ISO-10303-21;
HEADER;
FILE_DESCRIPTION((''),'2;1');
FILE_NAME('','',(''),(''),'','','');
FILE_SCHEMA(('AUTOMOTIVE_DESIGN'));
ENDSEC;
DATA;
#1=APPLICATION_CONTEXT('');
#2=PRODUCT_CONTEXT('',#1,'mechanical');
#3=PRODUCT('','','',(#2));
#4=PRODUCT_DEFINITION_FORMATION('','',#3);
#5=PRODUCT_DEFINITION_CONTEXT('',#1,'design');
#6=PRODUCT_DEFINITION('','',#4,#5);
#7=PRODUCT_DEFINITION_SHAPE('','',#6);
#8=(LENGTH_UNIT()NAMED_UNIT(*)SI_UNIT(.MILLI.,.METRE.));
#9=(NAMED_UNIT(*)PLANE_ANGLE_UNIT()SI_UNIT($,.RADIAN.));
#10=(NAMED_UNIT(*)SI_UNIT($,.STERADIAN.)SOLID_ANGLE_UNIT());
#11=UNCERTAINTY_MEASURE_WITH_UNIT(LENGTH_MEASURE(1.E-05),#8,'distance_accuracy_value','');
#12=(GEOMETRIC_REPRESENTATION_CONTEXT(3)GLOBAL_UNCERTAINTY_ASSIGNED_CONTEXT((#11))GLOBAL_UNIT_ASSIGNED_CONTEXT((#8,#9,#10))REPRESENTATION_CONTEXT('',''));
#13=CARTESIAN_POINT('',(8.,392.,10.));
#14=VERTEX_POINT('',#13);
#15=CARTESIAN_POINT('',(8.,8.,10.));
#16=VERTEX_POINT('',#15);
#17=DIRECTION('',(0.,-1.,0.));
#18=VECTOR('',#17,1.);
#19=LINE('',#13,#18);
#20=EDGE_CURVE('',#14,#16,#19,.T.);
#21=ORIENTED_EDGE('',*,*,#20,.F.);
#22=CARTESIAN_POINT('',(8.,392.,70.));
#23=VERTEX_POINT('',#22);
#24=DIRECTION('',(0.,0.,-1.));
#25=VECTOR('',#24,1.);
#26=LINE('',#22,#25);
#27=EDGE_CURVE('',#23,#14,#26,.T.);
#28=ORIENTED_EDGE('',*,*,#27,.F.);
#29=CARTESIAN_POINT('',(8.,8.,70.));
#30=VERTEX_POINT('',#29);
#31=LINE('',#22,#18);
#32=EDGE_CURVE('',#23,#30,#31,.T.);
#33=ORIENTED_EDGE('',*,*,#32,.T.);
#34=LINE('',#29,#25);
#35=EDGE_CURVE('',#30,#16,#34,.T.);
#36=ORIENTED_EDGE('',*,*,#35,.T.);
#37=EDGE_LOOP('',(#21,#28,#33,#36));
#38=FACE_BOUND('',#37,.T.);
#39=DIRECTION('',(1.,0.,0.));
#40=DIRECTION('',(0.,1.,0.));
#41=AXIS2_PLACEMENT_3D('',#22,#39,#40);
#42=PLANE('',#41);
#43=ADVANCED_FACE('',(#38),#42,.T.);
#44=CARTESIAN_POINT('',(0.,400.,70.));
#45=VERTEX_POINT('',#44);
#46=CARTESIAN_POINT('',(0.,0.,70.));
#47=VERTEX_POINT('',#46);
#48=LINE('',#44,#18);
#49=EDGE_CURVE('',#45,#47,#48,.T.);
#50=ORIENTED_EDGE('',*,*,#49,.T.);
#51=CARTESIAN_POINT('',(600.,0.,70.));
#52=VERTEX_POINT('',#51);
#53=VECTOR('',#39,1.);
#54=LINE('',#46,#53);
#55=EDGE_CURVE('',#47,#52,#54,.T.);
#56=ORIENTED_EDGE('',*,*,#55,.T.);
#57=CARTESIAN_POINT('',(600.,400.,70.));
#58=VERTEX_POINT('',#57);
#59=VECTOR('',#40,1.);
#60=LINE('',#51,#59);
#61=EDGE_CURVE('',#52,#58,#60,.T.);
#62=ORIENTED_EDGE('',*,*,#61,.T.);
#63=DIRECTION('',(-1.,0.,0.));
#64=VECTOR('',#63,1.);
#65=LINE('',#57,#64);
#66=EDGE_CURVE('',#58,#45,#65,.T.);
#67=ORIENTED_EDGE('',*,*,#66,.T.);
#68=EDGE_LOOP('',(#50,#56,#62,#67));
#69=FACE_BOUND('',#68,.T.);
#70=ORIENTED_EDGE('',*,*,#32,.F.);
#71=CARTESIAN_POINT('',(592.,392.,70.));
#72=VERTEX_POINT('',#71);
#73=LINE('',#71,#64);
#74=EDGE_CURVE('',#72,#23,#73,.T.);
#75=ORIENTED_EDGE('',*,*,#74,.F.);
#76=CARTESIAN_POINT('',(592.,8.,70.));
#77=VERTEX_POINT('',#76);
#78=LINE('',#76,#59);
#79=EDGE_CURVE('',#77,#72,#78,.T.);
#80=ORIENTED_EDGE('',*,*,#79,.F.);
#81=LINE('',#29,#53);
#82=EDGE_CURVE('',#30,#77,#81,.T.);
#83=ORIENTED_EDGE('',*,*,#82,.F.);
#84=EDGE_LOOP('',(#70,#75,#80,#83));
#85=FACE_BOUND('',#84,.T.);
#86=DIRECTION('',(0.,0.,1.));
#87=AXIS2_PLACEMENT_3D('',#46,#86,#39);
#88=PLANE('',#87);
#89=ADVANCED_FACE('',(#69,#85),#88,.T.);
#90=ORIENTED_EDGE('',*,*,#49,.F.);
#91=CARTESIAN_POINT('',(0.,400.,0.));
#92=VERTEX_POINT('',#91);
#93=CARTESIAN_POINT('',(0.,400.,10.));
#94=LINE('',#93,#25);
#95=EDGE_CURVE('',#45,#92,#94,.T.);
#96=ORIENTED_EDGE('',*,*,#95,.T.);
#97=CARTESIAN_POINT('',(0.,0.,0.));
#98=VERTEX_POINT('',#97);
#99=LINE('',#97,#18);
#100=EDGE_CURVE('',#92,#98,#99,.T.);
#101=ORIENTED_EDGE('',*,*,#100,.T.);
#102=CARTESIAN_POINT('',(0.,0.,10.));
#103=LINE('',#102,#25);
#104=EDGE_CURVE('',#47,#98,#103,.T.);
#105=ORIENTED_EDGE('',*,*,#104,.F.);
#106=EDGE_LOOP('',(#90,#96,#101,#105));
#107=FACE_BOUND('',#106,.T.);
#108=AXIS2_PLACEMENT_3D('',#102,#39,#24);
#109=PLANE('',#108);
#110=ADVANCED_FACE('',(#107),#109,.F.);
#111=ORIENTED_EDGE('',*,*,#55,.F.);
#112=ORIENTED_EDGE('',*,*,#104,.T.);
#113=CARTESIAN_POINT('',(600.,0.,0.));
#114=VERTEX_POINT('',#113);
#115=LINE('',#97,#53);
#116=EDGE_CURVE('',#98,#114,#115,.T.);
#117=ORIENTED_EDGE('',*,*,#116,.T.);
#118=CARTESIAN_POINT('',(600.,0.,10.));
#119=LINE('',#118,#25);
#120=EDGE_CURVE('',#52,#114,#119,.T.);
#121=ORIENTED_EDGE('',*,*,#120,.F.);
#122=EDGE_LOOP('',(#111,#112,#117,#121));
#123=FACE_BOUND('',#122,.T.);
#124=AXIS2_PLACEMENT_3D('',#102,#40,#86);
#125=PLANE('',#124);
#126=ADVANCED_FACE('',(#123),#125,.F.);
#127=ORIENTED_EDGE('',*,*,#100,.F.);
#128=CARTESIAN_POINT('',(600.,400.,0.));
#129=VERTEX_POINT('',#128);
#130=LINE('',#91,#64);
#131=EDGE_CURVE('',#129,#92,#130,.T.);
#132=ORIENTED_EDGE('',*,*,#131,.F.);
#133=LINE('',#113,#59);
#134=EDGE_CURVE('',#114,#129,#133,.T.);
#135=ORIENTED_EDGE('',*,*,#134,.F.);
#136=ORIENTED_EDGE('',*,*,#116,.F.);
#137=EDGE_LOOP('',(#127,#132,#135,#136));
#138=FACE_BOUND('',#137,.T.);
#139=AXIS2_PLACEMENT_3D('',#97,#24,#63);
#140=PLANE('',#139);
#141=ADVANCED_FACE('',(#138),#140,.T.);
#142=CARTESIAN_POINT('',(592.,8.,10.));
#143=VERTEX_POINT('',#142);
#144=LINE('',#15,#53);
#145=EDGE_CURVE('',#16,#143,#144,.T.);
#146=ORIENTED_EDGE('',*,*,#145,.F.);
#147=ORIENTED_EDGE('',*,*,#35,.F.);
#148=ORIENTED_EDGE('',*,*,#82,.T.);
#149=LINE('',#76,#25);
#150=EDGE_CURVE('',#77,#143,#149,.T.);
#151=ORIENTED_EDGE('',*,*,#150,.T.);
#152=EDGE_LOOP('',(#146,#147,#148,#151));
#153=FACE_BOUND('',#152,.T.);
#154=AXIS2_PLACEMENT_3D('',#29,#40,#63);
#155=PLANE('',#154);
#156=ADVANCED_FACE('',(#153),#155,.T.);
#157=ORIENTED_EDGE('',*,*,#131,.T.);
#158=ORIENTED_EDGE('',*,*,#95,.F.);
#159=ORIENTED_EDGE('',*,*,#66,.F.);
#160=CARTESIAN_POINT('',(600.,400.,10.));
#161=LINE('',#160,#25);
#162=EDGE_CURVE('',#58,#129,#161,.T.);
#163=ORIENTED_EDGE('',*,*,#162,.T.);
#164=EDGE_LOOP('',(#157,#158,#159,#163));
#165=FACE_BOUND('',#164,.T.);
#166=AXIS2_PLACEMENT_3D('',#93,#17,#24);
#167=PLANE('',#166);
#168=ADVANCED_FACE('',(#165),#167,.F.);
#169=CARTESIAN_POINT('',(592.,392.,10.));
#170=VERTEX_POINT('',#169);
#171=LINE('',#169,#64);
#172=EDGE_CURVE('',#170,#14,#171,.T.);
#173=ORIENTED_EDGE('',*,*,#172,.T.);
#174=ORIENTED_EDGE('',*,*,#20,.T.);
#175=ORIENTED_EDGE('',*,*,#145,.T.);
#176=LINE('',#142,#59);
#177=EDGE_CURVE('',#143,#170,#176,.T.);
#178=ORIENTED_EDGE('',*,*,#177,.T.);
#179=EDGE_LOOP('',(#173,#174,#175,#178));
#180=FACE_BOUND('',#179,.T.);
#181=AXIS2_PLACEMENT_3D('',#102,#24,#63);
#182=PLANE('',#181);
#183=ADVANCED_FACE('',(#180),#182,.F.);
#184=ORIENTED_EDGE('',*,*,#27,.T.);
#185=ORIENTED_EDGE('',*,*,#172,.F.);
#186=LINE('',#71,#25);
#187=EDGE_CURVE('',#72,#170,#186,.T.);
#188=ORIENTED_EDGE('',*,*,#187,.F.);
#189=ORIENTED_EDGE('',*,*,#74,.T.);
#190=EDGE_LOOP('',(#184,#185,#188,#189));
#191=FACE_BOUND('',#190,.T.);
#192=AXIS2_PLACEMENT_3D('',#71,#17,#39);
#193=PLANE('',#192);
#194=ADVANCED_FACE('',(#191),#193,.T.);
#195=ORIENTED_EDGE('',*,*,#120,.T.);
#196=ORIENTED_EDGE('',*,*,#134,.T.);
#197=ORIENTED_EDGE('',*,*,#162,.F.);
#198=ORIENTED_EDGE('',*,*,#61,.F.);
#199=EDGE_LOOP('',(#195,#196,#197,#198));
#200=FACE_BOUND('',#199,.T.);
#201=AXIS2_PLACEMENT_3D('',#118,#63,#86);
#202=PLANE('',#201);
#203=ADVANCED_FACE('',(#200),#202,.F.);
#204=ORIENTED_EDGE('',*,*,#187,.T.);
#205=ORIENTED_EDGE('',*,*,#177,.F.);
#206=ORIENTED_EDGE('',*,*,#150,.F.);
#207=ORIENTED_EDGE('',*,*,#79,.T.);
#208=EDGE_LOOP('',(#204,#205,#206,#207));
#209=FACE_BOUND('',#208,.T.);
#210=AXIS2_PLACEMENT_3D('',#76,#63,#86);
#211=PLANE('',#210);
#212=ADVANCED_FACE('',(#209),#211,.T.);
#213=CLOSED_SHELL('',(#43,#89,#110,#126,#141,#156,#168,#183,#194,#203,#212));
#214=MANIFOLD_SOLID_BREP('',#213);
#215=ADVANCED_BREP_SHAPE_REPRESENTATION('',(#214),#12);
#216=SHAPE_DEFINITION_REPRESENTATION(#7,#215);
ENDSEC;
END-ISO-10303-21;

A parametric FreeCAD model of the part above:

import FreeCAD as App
import Part
import Sketcher

V = App.Vector


def add_polygon(sketch, points):
    """Adds a closed chain of lines whose ends are joined by coincident constraints."""
    first, n = sketch.GeometryCount, len(points)
    for a, b in zip(points, points[1:] + points[:1]):
        sketch.addGeometry(Part.LineSegment(App.Vector(*a, 0), App.Vector(*b, 0)), False)
    for i in range(n):
        sketch.addConstraint(Sketcher.Constraint("Coincident", first + i, 2, first + (i + 1) % n, 1))

doc = App.newDocument("Part")
params = doc.addObject("Spreadsheet::Sheet", "Params")
for row, (alias, value) in enumerate([
    ("sketch1_width", "600 mm"),
    ("sketch1_height", "400 mm"),
    ("pad1_length", "10 mm"),
    ("sketch2_width", "600 mm"),
    ("sketch2_width2", "584 mm"),
    ("sketch2_height", "400 mm"),
    ("sketch2_height2", "384 mm"),
    ("pad2_length", "60 mm"),
], start=1):
    params.set(f"A{row}", alias)
    params.set(f"B{row}", "=" + value)
    params.setAlias(f"B{row}", alias)

body = doc.addObject("PartDesign::Body", "Body")

sketch1 = body.newObject("Sketcher::SketchObject", "Sketch")
sketch1.AttachmentSupport = (doc.getObject("XY_Plane"), [""])
sketch1.MapMode = "FlatFace"
add_polygon(sketch1, [(0, 400), (0, 0), (600, 0), (600, 400)])
sketch1.addConstraint(Sketcher.Constraint("Vertical", 0))
sketch1.addConstraint(Sketcher.Constraint("Horizontal", 1))
sketch1.addConstraint(Sketcher.Constraint("Vertical", 2))
sketch1.addConstraint(Sketcher.Constraint("Horizontal", 3))
sketch1.addConstraint(Sketcher.Constraint("Coincident", 0, 2, -1, 1))
sketch1.addConstraint(Sketcher.Constraint("DistanceX", 1, 1, 1, 2, 600.0))
sketch1.addConstraint(Sketcher.Constraint("DistanceY", 0, 2, 0, 1, 400.0))
sketch1.setExpression("Constraints[9]", "Params.sketch1_width")
sketch1.setExpression("Constraints[10]", "Params.sketch1_height")
pad1 = body.newObject("PartDesign::Pad", "Pad")
pad1.Profile = sketch1
pad1.setExpression("Length", "Params.pad1_length")

sketch2 = body.newObject("Sketcher::SketchObject", "Sketch001")
sketch2.AttachmentSupport = (doc.getObject("XY_Plane"), [""])
sketch2.MapMode = "FlatFace"
sketch2.AttachmentOffset = App.Placement(V(0, 0, 10), App.Rotation())
add_polygon(sketch2, [(0, 400), (0, 0), (600, 0), (600, 400)])
add_polygon(sketch2, [(592, 8), (8, 8), (8, 392), (592, 392)])
sketch2.addConstraint(Sketcher.Constraint("Vertical", 0))
sketch2.addConstraint(Sketcher.Constraint("Horizontal", 1))
sketch2.addConstraint(Sketcher.Constraint("Vertical", 2))
sketch2.addConstraint(Sketcher.Constraint("Horizontal", 3))
sketch2.addConstraint(Sketcher.Constraint("Horizontal", 4))
sketch2.addConstraint(Sketcher.Constraint("Vertical", 5))
sketch2.addConstraint(Sketcher.Constraint("Horizontal", 6))
sketch2.addConstraint(Sketcher.Constraint("Vertical", 7))
sketch2.addConstraint(Sketcher.Constraint("Coincident", 0, 2, -1, 1))
sketch2.addConstraint(Sketcher.Constraint("DistanceX", 1, 1, 1, 2, 600.0))
sketch2.addConstraint(Sketcher.Constraint("DistanceX", 4, 2, 4, 1, 584.0))
sketch2.addConstraint(Sketcher.Constraint("DistanceY", 0, 2, 0, 1, 400.0))
sketch2.addConstraint(Sketcher.Constraint("DistanceY", 5, 1, 5, 2, 384.0))
sketch2.addConstraint(Sketcher.Constraint("DistanceX", -1, 1, 4, 2, 8.0))
sketch2.addConstraint(Sketcher.Constraint("DistanceY", -1, 1, 4, 2, 8.0))
sketch2.setExpression("Constraints[17]", "Params.sketch2_width")
sketch2.setExpression("Constraints[18]", "Params.sketch2_width2")
sketch2.setExpression("Constraints[19]", "Params.sketch2_height")
sketch2.setExpression("Constraints[20]", "Params.sketch2_height2")
pad2 = body.newObject("PartDesign::Pad", "Pad001")
pad2.Profile = sketch2
pad2.setExpression("Length", "Params.pad2_length")

doc.recompute()
